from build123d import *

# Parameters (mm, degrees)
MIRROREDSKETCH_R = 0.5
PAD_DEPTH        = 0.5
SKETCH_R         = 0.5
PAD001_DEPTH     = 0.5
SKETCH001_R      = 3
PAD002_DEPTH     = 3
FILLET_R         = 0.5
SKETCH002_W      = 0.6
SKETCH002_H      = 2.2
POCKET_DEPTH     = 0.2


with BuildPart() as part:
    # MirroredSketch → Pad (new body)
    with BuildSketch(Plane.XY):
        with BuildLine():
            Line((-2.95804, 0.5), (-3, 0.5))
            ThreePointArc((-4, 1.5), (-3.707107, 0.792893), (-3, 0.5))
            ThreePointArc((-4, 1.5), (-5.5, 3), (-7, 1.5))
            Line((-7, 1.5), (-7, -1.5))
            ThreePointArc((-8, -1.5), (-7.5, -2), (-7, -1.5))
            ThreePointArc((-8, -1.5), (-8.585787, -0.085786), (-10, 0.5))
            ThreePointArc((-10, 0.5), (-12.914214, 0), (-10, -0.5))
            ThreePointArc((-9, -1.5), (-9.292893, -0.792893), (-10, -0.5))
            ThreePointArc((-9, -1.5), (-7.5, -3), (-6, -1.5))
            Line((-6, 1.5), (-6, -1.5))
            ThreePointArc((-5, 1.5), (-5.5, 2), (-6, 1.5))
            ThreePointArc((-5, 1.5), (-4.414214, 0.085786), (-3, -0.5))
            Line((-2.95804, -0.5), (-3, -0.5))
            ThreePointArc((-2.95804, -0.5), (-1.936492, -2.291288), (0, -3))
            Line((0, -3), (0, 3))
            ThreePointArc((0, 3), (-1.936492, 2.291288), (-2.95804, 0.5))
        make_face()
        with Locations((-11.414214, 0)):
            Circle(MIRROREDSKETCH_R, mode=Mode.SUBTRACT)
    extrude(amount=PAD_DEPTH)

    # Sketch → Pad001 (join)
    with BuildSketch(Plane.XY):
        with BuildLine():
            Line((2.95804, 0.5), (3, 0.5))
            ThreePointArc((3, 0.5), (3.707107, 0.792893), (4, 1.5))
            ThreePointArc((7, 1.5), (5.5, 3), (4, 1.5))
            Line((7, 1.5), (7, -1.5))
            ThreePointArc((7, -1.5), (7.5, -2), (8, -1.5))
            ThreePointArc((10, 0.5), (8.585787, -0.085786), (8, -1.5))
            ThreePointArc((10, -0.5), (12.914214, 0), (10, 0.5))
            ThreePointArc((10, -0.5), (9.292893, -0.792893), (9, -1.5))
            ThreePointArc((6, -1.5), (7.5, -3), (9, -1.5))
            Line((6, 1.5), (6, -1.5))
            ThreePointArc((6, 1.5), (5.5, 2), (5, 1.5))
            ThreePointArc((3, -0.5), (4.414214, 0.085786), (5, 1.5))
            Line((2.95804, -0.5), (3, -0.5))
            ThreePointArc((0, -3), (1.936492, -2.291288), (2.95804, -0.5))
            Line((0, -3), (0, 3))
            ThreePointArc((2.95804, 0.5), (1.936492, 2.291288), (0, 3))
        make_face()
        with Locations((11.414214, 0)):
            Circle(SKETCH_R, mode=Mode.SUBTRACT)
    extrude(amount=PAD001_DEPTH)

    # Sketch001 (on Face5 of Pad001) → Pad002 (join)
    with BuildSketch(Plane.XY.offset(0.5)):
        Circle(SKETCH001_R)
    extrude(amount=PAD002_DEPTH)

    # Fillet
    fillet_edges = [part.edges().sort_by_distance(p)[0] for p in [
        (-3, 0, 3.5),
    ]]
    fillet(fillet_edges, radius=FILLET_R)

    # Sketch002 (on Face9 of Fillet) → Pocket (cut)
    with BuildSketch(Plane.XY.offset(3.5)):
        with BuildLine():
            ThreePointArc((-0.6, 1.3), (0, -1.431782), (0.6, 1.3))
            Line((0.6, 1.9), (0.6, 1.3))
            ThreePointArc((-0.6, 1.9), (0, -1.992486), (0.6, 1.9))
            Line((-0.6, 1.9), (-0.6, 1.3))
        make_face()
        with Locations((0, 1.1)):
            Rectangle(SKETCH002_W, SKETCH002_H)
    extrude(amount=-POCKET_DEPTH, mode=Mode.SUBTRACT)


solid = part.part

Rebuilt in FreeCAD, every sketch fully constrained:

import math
import FreeCAD as App
import Part
import Sketcher
from FreeCAD import Vector


def edges_at(feature, points):
    """Names of the edges that pass closest to the given points."""
    edges = feature.Shape.Edges
    near = lambda p: min(range(len(edges)), key=lambda i: edges[i].distToShape(Part.Vertex(*p))[0])
    return sorted({f"Edge{near(p) + 1}" for p in points})

doc = App.newDocument("Part")
body = doc.addObject("PartDesign::Body", "Body")

# Sketch on XY plane
sketch1 = body.newObject("Sketcher::SketchObject", "Sketch")
sketch1.AttachmentSupport = (doc.getObject("XY_Plane"), [""])
sketch1.MapMode = "FlatFace"
sketch1.addGeometry([
    Part.LineSegment(Vector(-2.958, 0.5, 0), Vector(-3, 0.5, 0)),  # 0
    Part.ArcOfCircle(Part.Circle(Vector(-3, 1.5, 0), Vector(0, 0, 1), 1), math.radians(180), math.radians(270)),  # 1
    Part.ArcOfCircle(Part.Circle(Vector(-5.5, 1.5, 0), Vector(0, 0, 1), 1.5), math.radians(0), math.radians(180)),  # 2
    Part.LineSegment(Vector(-7, 1.5, 0), Vector(-7, -1.5, 0)),  # 3
    Part.ArcOfCircle(Part.Circle(Vector(-7.5, -1.5, 0), Vector(0, 0, 1), 0.5), math.radians(180), math.radians(360)),  # 4
    Part.ArcOfCircle(Part.Circle(Vector(-10, -1.5, 0), Vector(0, 0, 1), 2), math.radians(0), math.radians(90)),  # 5
    Part.ArcOfCircle(Part.Circle(Vector(-11.414, 0, 0), Vector(0, 0, 1), 1.5), math.radians(19), math.radians(341)),  # 6
    Part.ArcOfCircle(Part.Circle(Vector(-10, -1.5, 0), Vector(0, 0, 1), 1), math.radians(0), math.radians(90)),  # 7
    Part.ArcOfCircle(Part.Circle(Vector(-7.5, -1.5, 0), Vector(0, 0, 1), 1.5), math.radians(180), math.radians(360)),  # 8
    Part.LineSegment(Vector(-6, -1.5, 0), Vector(-6, 1.5, 0)),  # 9
    Part.ArcOfCircle(Part.Circle(Vector(-5.5, 1.5, 0), Vector(0, 0, 1), 0.5), math.radians(0), math.radians(180)),  # 10
    Part.ArcOfCircle(Part.Circle(Vector(-3, 1.5, 0), Vector(0, 0, 1), 2), math.radians(180), math.radians(270)),  # 11
    Part.LineSegment(Vector(-3, -0.5, 0), Vector(-2.958, -0.5, 0)),  # 12
    Part.ArcOfCircle(Part.Circle(Vector(0, 0, 0), Vector(0, 0, 1), 3), math.radians(-170), math.radians(-90)),  # 13
    Part.LineSegment(Vector(0, -3, 0), Vector(0, 3, 0)),  # 14
    Part.ArcOfCircle(Part.Circle(Vector(0, 0, 0), Vector(0, 0, 1), 3), math.radians(90), math.radians(170)),  # 15
    Part.Circle(Vector(-11.414, 0, 0), Vector(0, 0, 1), 0.5),  # 16
], False)
sketch1.addConstraint([
    Sketcher.Constraint("Tangent", 0, 2, 1, 2),
    Sketcher.Constraint("Tangent", 1, 1, 2, 1),
    Sketcher.Constraint("Tangent", 2, 2, 3, 1),
    Sketcher.Constraint("Tangent", 3, 2, 4, 2),
    Sketcher.Constraint("Tangent", 4, 1, 5, 1),
    Sketcher.Constraint("Coincident", 5, 2, 6, 1),
    Sketcher.Constraint("Coincident", 6, 2, 7, 2),
    Sketcher.Constraint("Tangent", 7, 1, 8, 1),
    Sketcher.Constraint("Tangent", 8, 2, 9, 1),
    Sketcher.Constraint("Tangent", 9, 2, 10, 2),
    Sketcher.Constraint("Tangent", 10, 1, 11, 1),
    Sketcher.Constraint("Tangent", 11, 2, 12, 1),
    Sketcher.Constraint("Coincident", 12, 2, 13, 1),
    Sketcher.Constraint("Coincident", 13, 2, 14, 1),
    Sketcher.Constraint("Coincident", 14, 2, 15, 1),
    Sketcher.Constraint("Coincident", 15, 2, 0, 1),
    Sketcher.Constraint("Horizontal", 0),
    Sketcher.Constraint("Vertical", 3),
    Sketcher.Constraint("Vertical", 9),
    Sketcher.Constraint("Horizontal", 12),
    Sketcher.Constraint("Vertical", 14),
    Sketcher.Constraint("Coincident", 13, 3, -1, 1),
    Sketcher.Constraint("Coincident", 15, 3, -1, 1),
    Sketcher.Constraint("Coincident", 7, 3, 5, 3),
    Sketcher.Constraint("Coincident", 8, 3, 4, 3),
    Sketcher.Constraint("Coincident", 10, 3, 2, 3),
    Sketcher.Constraint("Coincident", 11, 3, 1, 3),
    Sketcher.Constraint("Coincident", 16, 3, 6, 3),
    Sketcher.Constraint("Equal", 2, 6),
    Sketcher.Constraint("Equal", 1, 7),
    Sketcher.Constraint("Equal", 6, 8),
    Sketcher.Constraint("Equal", 13, 15),
    Sketcher.Constraint("Equal", 10, 16),
    Sketcher.Constraint("Symmetric", 5, 2, 6, 2, -1),
    Sketcher.Constraint("PointOnObject", 13, 2, -2),
    Sketcher.Constraint("Horizontal", 1, 3, 2, 3),
    Sketcher.Constraint("Horizontal", 4, 3, 5, 3),
    Sketcher.Constraint("Horizontal", 0, 2, 5, 2),
    Sketcher.Constraint("Vertical", 7, 3, 5, 2),
    Sketcher.Constraint("Diameter", 16, 1.0),
    Sketcher.Constraint("Radius", 1, 0.999999),
    Sketcher.Constraint("Radius", 5, 2.0),
    Sketcher.Constraint("Radius", 13, 2.999999),
    Sketcher.Constraint("DistanceX", 1, 3, -1, 1, 3.000001),
])
pad1 = body.newObject("PartDesign::Pad", "Pad")
pad1.Profile = sketch1
pad1.Length = 0.5

# Sketch on XY plane
sketch2 = body.newObject("Sketcher::SketchObject", "Sketch001")
sketch2.AttachmentSupport = (doc.getObject("XY_Plane"), [""])
sketch2.MapMode = "FlatFace"
sketch2.addGeometry([
    Part.LineSegment(Vector(3, 0.5, 0), Vector(2.958, 0.5, 0)),  # 0
    Part.ArcOfCircle(Part.Circle(Vector(0, 0, 0), Vector(0, 0, 1), 3), math.radians(10), math.radians(90)),  # 1
    Part.LineSegment(Vector(0, 3, 0), Vector(0, -3, 0)),  # 2
    Part.ArcOfCircle(Part.Circle(Vector(0, 0, 0), Vector(0, 0, 1), 3), math.radians(-90), math.radians(-10)),  # 3
    Part.LineSegment(Vector(2.958, -0.5, 0), Vector(3, -0.5, 0)),  # 4
    Part.ArcOfCircle(Part.Circle(Vector(3, 1.5, 0), Vector(0, 0, 1), 2), math.radians(-90), math.radians(0)),  # 5
    Part.ArcOfCircle(Part.Circle(Vector(5.5, 1.5, 0), Vector(0, 0, 1), 0.5), math.radians(0), math.radians(180)),  # 6
    Part.LineSegment(Vector(6, 1.5, 0), Vector(6, -1.5, 0)),  # 7
    Part.ArcOfCircle(Part.Circle(Vector(7.5, -1.5, 0), Vector(0, 0, 1), 1.5), math.radians(180), math.radians(360)),  # 8
    Part.ArcOfCircle(Part.Circle(Vector(10, -1.5, 0), Vector(0, 0, 1), 1), math.radians(90), math.radians(180)),  # 9
    Part.ArcOfCircle(Part.Circle(Vector(11.414, 0, 0), Vector(0, 0, 1), 1.5), math.radians(-161), math.radians(161)),  # 10
    Part.ArcOfCircle(Part.Circle(Vector(10, -1.5, 0), Vector(0, 0, 1), 2), math.radians(90), math.radians(180)),  # 11
    Part.ArcOfCircle(Part.Circle(Vector(7.5, -1.5, 0), Vector(0, 0, 1), 0.5), math.radians(180), math.radians(360)),  # 12
    Part.LineSegment(Vector(7, -1.5, 0), Vector(7, 1.5, 0)),  # 13
    Part.ArcOfCircle(Part.Circle(Vector(5.5, 1.5, 0), Vector(0, 0, 1), 1.5), math.radians(0), math.radians(180)),  # 14
    Part.ArcOfCircle(Part.Circle(Vector(3, 1.5, 0), Vector(0, 0, 1), 1), math.radians(-90), math.radians(0)),  # 15
    Part.Circle(Vector(11.414, 0, 0), Vector(0, 0, 1), 0.5),  # 16
], False)
sketch2.addConstraint([
    Sketcher.Constraint("Coincident", 0, 2, 1, 1),
    Sketcher.Constraint("Coincident", 1, 2, 2, 1),
    Sketcher.Constraint("Coincident", 2, 2, 3, 1),
    Sketcher.Constraint("Coincident", 3, 2, 4, 1),
    Sketcher.Constraint("Tangent", 4, 2, 5, 1),
    Sketcher.Constraint("Tangent", 5, 2, 6, 2),
    Sketcher.Constraint("Tangent", 6, 1, 7, 1),
    Sketcher.Constraint("Tangent", 7, 2, 8, 1),
    Sketcher.Constraint("Tangent", 8, 2, 9, 2),
    Sketcher.Constraint("Coincident", 9, 1, 10, 1),
    Sketcher.Constraint("Coincident", 10, 2, 11, 1),
    Sketcher.Constraint("Tangent", 11, 2, 12, 2),
    Sketcher.Constraint("Tangent", 12, 1, 13, 1),
    Sketcher.Constraint("Tangent", 13, 2, 14, 1),
    Sketcher.Constraint("Tangent", 14, 2, 15, 2),
    Sketcher.Constraint("Tangent", 15, 1, 0, 1),
    Sketcher.Constraint("Horizontal", 0),
    Sketcher.Constraint("Vertical", 2),
    Sketcher.Constraint("Horizontal", 4),
    Sketcher.Constraint("Vertical", 7),
    Sketcher.Constraint("Vertical", 13),
    Sketcher.Constraint("Coincident", 1, 3, -1, 1),
    Sketcher.Constraint("Coincident", 3, 3, -1, 1),
    Sketcher.Constraint("Coincident", 11, 3, 9, 3),
    Sketcher.Constraint("Coincident", 12, 3, 8, 3),
    Sketcher.Constraint("Coincident", 14, 3, 6, 3),
    Sketcher.Constraint("Coincident", 15, 3, 5, 3),
    Sketcher.Constraint("Coincident", 16, 3, 10, 3),
    Sketcher.Constraint("Equal", 1, 3),
    Sketcher.Constraint("Equal", 8, 10),
    Sketcher.Constraint("Equal", 5, 11),
    Sketcher.Constraint("Equal", 6, 12),
    Sketcher.Constraint("Equal", 12, 16),
    Sketcher.Constraint("Symmetric", 9, 1, 10, 2, -1),
    Sketcher.Constraint("PointOnObject", 1, 2, -2),
    Sketcher.Constraint("Horizontal", 5, 3, 6, 3),
    Sketcher.Constraint("Horizontal", 8, 3, 9, 3),
    Sketcher.Constraint("Horizontal", 4, 2, 9, 1),
    Sketcher.Constraint("Vertical", 11, 3, 9, 1),
    Sketcher.Constraint("Diameter", 16, 1.0),
    Sketcher.Constraint("Radius", 1, 2.999999),
    Sketcher.Constraint("Radius", 5, 1.999999),
    Sketcher.Constraint("Radius", 9, 0.999999),
    Sketcher.Constraint("DistanceX", -1, 1, 5, 3, 3.000001),
])
pad2 = body.newObject("PartDesign::Pad", "Pad001")
pad2.Profile = sketch2
pad2.Length = 0.5

# Sketch on XY plane
sketch3 = body.newObject("Sketcher::SketchObject", "Sketch002")
sketch3.AttachmentSupport = (doc.getObject("XY_Plane"), [""])
sketch3.MapMode = "FlatFace"
sketch3.AttachmentOffset = App.Placement(Vector(0, 0, 0.5), App.Rotation())
sketch3.addGeometry(Part.Circle(Vector(0, 0, 0), Vector(0, 0, 1), 3), False)
sketch3.addConstraint([
    Sketcher.Constraint("Coincident", 0, 3, -1, 1),
    Sketcher.Constraint("Diameter", 0, 6.0),
])
pad3 = body.newObject("PartDesign::Pad", "Pad002")
pad3.Profile = sketch3
pad3.Length = 3
doc.recompute()

fillet = body.newObject("PartDesign::Fillet", "Fillet")
fillet.Base = (pad3, edges_at(pad3, [(-3, 0, 3.5)]))
fillet.Radius = 0.5

# Sketch on XY plane
sketch4 = body.newObject("Sketcher::SketchObject", "Sketch003")
sketch4.AttachmentSupport = (doc.getObject("XY_Plane"), [""])
sketch4.MapMode = "FlatFace"
sketch4.AttachmentOffset = App.Placement(Vector(0, 0, 3.5), App.Rotation())
sketch4.addGeometry([
    Part.ArcOfCircle(Part.Circle(Vector(0, 0, 0), Vector(0, 0, 1), 1.4), math.radians(115), math.radians(425)),  # 0
    Part.LineSegment(Vector(-0.6, 1.3, 0), Vector(-0.6, 1.9, 0)),  # 1
    Part.ArcOfCircle(Part.Circle(Vector(0, 0, 0), Vector(0, 0, 1), 2), math.radians(108), math.radians(432)),  # 2
    Part.LineSegment(Vector(0.6, 1.9, 0), Vector(0.6, 1.3, 0)),  # 3
    Part.LineSegment(Vector(-0.3, 2.2, 0), Vector(-0.3, 0, 0)),  # 4
    Part.LineSegment(Vector(-0.3, 0, 0), Vector(0.3, 0, 0)),  # 5
    Part.LineSegment(Vector(0.3, 0, 0), Vector(0.3, 2.2, 0)),  # 6
    Part.LineSegment(Vector(0.3, 2.2, 0), Vector(-0.3, 2.2, 0)),  # 7
], False)
sketch4.addConstraint([
    Sketcher.Constraint("Coincident", 0, 1, 1, 1),
    Sketcher.Constraint("Coincident", 1, 2, 2, 1),
    Sketcher.Constraint("Coincident", 2, 2, 3, 1),
    Sketcher.Constraint("Coincident", 3, 2, 0, 2),
    Sketcher.Constraint("Coincident", 4, 2, 5, 1),
    Sketcher.Constraint("Coincident", 5, 2, 6, 1),
    Sketcher.Constraint("Coincident", 6, 2, 7, 1),
    Sketcher.Constraint("Coincident", 7, 2, 4, 1),
    Sketcher.Constraint("Vertical", 1),
    Sketcher.Constraint("Vertical", 3),
    Sketcher.Constraint("Vertical", 4),
    Sketcher.Constraint("Horizontal", 5),
    Sketcher.Constraint("Vertical", 6),
    Sketcher.Constraint("Horizontal", 7),
    Sketcher.Constraint("Coincident", 0, 3, -1, 1),
    Sketcher.Constraint("Coincident", 2, 3, -1, 1),
    Sketcher.Constraint("Symmetric", 4, 2, 5, 2, -1, 1),
    Sketcher.Constraint("Horizontal", 1, 2, 2, 2),
    Sketcher.Constraint("Equal", 7, 1),
    Sketcher.Constraint("DistanceX", 5, 1, 5, 2, 0.6),
    Sketcher.Constraint("DistanceY", 4, 2, 4, 1, 2.2),
    Sketcher.Constraint("DistanceX", 0, 1, -1, 1, 0.6),
    Sketcher.Constraint("DistanceY", -1, 1, 0, 1, 1.3),
])
pocket1 = body.newObject("PartDesign::Pocket", "Pocket")
pocket1.Profile = sketch4
pocket1.Length = 0.2

doc.recompute()
